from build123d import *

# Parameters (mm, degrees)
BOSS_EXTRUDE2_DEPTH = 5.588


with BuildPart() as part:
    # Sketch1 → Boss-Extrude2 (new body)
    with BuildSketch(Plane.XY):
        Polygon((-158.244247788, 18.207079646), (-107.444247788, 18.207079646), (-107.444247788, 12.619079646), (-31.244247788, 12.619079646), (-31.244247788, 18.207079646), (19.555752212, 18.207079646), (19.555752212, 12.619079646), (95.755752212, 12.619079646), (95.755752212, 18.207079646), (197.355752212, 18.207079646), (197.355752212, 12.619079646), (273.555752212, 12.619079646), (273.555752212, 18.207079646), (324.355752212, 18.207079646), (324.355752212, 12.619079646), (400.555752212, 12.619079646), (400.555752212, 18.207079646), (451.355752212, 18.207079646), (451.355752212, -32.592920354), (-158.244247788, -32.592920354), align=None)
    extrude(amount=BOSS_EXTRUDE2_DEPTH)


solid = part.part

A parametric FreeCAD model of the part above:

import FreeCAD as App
import Part
import Sketcher

V = App.Vector
Q = App.Units.Quantity

doc = App.newDocument("Part")
body = doc.addObject("PartDesign::Body", "Body")

# Sketch on XY plane
sketch1 = body.newObject("Sketcher::SketchObject", "Sketch")
sketch1.AttachmentSupport = (doc.getObject("XY_Plane"), [""])
sketch1.MapMode = "FlatFace"
sketch1.addGeometry([
    Part.LineSegment(V(-107.444248, 18.20708, 0), V(-158.244248, 18.20708, 0)),  # 0
    Part.LineSegment(V(-158.244248, 18.20708, 0), V(-158.244248, -32.59292, 0)),  # 1
    Part.LineSegment(V(-158.244248, -32.59292, 0), V(451.355752, -32.59292, 0)),  # 2
    Part.LineSegment(V(451.355752, -32.59292, 0), V(451.355752, 18.20708, 0)),  # 3
    Part.LineSegment(V(451.355752, 18.20708, 0), V(400.555752, 18.20708, 0)),  # 4
    Part.LineSegment(V(400.555752, 18.20708, 0), V(400.555752, 12.61908, 0)),  # 5
    Part.LineSegment(V(400.555752, 12.61908, 0), V(324.355752, 12.61908, 0)),  # 6
    Part.LineSegment(V(324.355752, 12.61908, 0), V(324.355752, 18.20708, 0)),  # 7
    Part.LineSegment(V(324.355752, 18.20708, 0), V(273.555752, 18.20708, 0)),  # 8
    Part.LineSegment(V(273.555752, 18.20708, 0), V(273.555752, 12.61908, 0)),  # 9
    Part.LineSegment(V(273.555752, 12.61908, 0), V(197.355752, 12.61908, 0)),  # 10
    Part.LineSegment(V(197.355752, 12.61908, 0), V(197.355752, 18.20708, 0)),  # 11
    Part.LineSegment(V(197.355752, 18.20708, 0), V(95.755752, 18.20708, 0)),  # 12
    Part.LineSegment(V(95.755752, 18.20708, 0), V(95.755752, 12.61908, 0)),  # 13
    Part.LineSegment(V(95.755752, 12.61908, 0), V(19.555752, 12.61908, 0)),  # 14
    Part.LineSegment(V(19.555752, 12.61908, 0), V(19.555752, 18.20708, 0)),  # 15
    Part.LineSegment(V(19.555752, 18.20708, 0), V(-31.244248, 18.20708, 0)),  # 16
    Part.LineSegment(V(-31.244248, 18.20708, 0), V(-31.244248, 12.61908, 0)),  # 17
    Part.LineSegment(V(-31.244248, 12.61908, 0), V(-107.444248, 12.61908, 0)),  # 18
    Part.LineSegment(V(-107.444248, 12.61908, 0), V(-107.444248, 18.20708, 0)),  # 19
], False)
sketch1.addConstraint([
    Sketcher.Constraint("Coincident", 0, 2, 1, 1),
    Sketcher.Constraint("Coincident", 1, 2, 2, 1),
    Sketcher.Constraint("Coincident", 2, 2, 3, 1),
    Sketcher.Constraint("Coincident", 3, 2, 4, 1),
    Sketcher.Constraint("Coincident", 4, 2, 5, 1),
    Sketcher.Constraint("Coincident", 5, 2, 6, 1),
    Sketcher.Constraint("Coincident", 6, 2, 7, 1),
    Sketcher.Constraint("Coincident", 7, 2, 8, 1),
    Sketcher.Constraint("Coincident", 8, 2, 9, 1),
    Sketcher.Constraint("Coincident", 9, 2, 10, 1),
    Sketcher.Constraint("Coincident", 10, 2, 11, 1),
    Sketcher.Constraint("Coincident", 11, 2, 12, 1),
    Sketcher.Constraint("Coincident", 12, 2, 13, 1),
    Sketcher.Constraint("Coincident", 13, 2, 14, 1),
    Sketcher.Constraint("Coincident", 14, 2, 15, 1),
    Sketcher.Constraint("Coincident", 15, 2, 16, 1),
    Sketcher.Constraint("Coincident", 16, 2, 17, 1),
    Sketcher.Constraint("Coincident", 17, 2, 18, 1),
    Sketcher.Constraint("Coincident", 18, 2, 19, 1),
    Sketcher.Constraint("Coincident", 19, 2, 0, 1),
    Sketcher.Constraint("Horizontal", 0),
    Sketcher.Constraint("Vertical", 1),
    Sketcher.Constraint("Horizontal", 2),
    Sketcher.Constraint("Vertical", 3),
    Sketcher.Constraint("Horizontal", 4),
    Sketcher.Constraint("Vertical", 5),
    Sketcher.Constraint("Horizontal", 6),
    Sketcher.Constraint("Vertical", 7),
    Sketcher.Constraint("Horizontal", 8),
    Sketcher.Constraint("Vertical", 9),
    Sketcher.Constraint("Horizontal", 10),
    Sketcher.Constraint("Vertical", 11),
    Sketcher.Constraint("Horizontal", 12),
    Sketcher.Constraint("Vertical", 13),
    Sketcher.Constraint("Horizontal", 14),
    Sketcher.Constraint("Vertical", 15),
    Sketcher.Constraint("Horizontal", 16),
    Sketcher.Constraint("Vertical", 17),
    Sketcher.Constraint("Horizontal", 18),
    Sketcher.Constraint("Vertical", 19),
    Sketcher.Constraint("Horizontal", 0, 2, 3, 2),
    Sketcher.Constraint("Horizontal", 4, 2, 7, 2),
    Sketcher.Constraint("Horizontal", 6, 2, 9, 2),
    Sketcher.Constraint("Horizontal", 8, 2, 11, 2),
    Sketcher.Constraint("Horizontal", 10, 2, 13, 2),
    Sketcher.Constraint("Horizontal", 12, 2, 15, 2),
    Sketcher.Constraint("Horizontal", 14, 2, 17, 2),
    Sketcher.Constraint("Equal", 0, 4),
    Sketcher.Constraint("Equal", 4, 8),
    Sketcher.Constraint("Equal", 6, 10),
    Sketcher.Constraint("Equal", 10, 14),
    Sketcher.Constraint("Equal", 8, 16),
    Sketcher.Constraint("Equal", 14, 18),
    Sketcher.Constraint("Equal", 16, 1),
    Sketcher.Constraint("DistanceX", 0, 2, 0, 1, Q("2 in")),
    Sketcher.Constraint("DistanceX", 2, 1, 2, 2, Q("24 in")),
    Sketcher.Constraint("DistanceX", 6, 2, 6, 1, Q("3 in")),
    Sketcher.Constraint("DistanceY", 5, 2, 5, 1, Q("0.22 in")),
    Sketcher.Constraint("DistanceY", -1, 1, 0, 2, 18.20708),
    Sketcher.Constraint("DistanceX", 0, 2, -1, 1, 158.244248),
])
pad1 = body.newObject("PartDesign::Pad", "Pad")
pad1.Profile = sketch1
pad1.Length = Q("0.22 in")

doc.recompute()
